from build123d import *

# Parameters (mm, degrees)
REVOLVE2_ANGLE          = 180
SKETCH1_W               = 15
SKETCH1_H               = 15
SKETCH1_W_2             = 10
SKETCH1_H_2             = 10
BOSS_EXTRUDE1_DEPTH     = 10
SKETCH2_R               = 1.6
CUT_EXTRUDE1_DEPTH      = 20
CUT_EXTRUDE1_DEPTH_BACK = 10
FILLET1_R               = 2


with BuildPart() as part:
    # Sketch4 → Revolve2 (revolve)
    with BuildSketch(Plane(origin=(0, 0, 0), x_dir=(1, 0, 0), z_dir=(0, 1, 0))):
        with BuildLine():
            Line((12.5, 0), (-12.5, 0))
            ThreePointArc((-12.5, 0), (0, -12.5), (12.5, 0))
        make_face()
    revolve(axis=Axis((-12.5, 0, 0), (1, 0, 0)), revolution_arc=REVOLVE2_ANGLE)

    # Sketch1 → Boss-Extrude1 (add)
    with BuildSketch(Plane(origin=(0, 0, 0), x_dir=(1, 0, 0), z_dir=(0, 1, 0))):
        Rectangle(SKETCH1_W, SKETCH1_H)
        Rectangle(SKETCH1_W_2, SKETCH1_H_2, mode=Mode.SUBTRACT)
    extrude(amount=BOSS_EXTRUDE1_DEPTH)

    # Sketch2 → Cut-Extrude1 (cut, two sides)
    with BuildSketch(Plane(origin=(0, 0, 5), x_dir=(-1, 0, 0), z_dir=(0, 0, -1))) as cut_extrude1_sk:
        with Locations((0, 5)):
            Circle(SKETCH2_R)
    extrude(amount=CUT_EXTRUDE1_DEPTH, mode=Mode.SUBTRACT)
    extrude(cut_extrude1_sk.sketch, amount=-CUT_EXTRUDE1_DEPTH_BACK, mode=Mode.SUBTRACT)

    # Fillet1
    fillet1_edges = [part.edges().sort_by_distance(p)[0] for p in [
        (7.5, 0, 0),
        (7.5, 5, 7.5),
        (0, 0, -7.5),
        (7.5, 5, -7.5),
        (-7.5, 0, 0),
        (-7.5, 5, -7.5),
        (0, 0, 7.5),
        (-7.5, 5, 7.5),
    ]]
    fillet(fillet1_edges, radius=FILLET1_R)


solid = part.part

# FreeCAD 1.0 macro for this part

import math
import FreeCAD as App
import Part
import Sketcher

V = App.Vector


def edges_at(feature, points):
    """Names of the edges that pass closest to the given points."""
    edges = feature.Shape.Edges
    near = lambda p: min(range(len(edges)), key=lambda i: edges[i].distToShape(Part.Vertex(*p))[0])
    return sorted({f"Edge{near(p) + 1}" for p in points})

doc = App.newDocument("Part")
body = doc.addObject("PartDesign::Body", "Body")

sketch1 = body.newObject("Sketcher::SketchObject", "Sketch")
sketch1.AttachmentSupport = (doc.getObject("XZ_Plane"), [""])
sketch1.MapMode = "FlatFace"
sketch1.addGeometry(Part.LineSegment(V(12, 0, 0), V(-12, 0, 0)), False)
sketch1.addGeometry(Part.ArcOfCircle(Part.Circle(V(0, 0, 0), V(0, 0, 1), 12), math.radians(0), math.radians(180)), False)
sketch1.addConstraint(Sketcher.Constraint("Coincident", 0, 1, 1, 1))
sketch1.addConstraint(Sketcher.Constraint("Coincident", 1, 2, 0, 2))
sketch1.addConstraint(Sketcher.Constraint("Horizontal", 0))
sketch1.addConstraint(Sketcher.Constraint("Coincident", 1, 3, -1, 1))
sketch1.addConstraint(Sketcher.Constraint("PointOnObject", 0, 1, -1))
sketch1.addConstraint(Sketcher.Constraint("Radius", 1, 12.5))
revolution = body.newObject("PartDesign::Revolution", "Revolution")
revolution.Profile = sketch1
revolution.ReferenceAxis = (sketch1, ["H_Axis"])
revolution.Angle = 180

sketch2 = body.newObject("Sketcher::SketchObject", "Sketch001")
sketch2.AttachmentSupport = (doc.getObject("XZ_Plane"), [""])
sketch2.MapMode = "FlatFace"
sketch2.addGeometry(Part.LineSegment(V(-8, -8, 0), V(-8, 8, 0)), False)
sketch2.addGeometry(Part.LineSegment(V(-8, 8, 0), V(8, 8, 0)), False)
sketch2.addGeometry(Part.LineSegment(V(8, 8, 0), V(8, -8, 0)), False)
sketch2.addGeometry(Part.LineSegment(V(8, -8, 0), V(-8, -8, 0)), False)
sketch2.addGeometry(Part.LineSegment(V(5, 5, 0), V(-5, 5, 0)), False)
sketch2.addGeometry(Part.LineSegment(V(-5, 5, 0), V(-5, -5, 0)), False)
sketch2.addGeometry(Part.LineSegment(V(-5, -5, 0), V(5, -5, 0)), False)
sketch2.addGeometry(Part.LineSegment(V(5, -5, 0), V(5, 5, 0)), False)
sketch2.addConstraint(Sketcher.Constraint("Coincident", 0, 2, 1, 1))
sketch2.addConstraint(Sketcher.Constraint("Coincident", 1, 2, 2, 1))
sketch2.addConstraint(Sketcher.Constraint("Coincident", 2, 2, 3, 1))
sketch2.addConstraint(Sketcher.Constraint("Coincident", 3, 2, 0, 1))
sketch2.addConstraint(Sketcher.Constraint("Coincident", 4, 2, 5, 1))
sketch2.addConstraint(Sketcher.Constraint("Coincident", 5, 2, 6, 1))
sketch2.addConstraint(Sketcher.Constraint("Coincident", 6, 2, 7, 1))
sketch2.addConstraint(Sketcher.Constraint("Coincident", 7, 2, 4, 1))
sketch2.addConstraint(Sketcher.Constraint("Vertical", 0))
sketch2.addConstraint(Sketcher.Constraint("Horizontal", 1))
sketch2.addConstraint(Sketcher.Constraint("Vertical", 2))
sketch2.addConstraint(Sketcher.Constraint("Horizontal", 3))
sketch2.addConstraint(Sketcher.Constraint("Horizontal", 4))
sketch2.addConstraint(Sketcher.Constraint("Vertical", 5))
sketch2.addConstraint(Sketcher.Constraint("Horizontal", 6))
sketch2.addConstraint(Sketcher.Constraint("Vertical", 7))
sketch2.addConstraint(Sketcher.Constraint("Symmetric", 0, 2, 2, 2, -1, 1))
sketch2.addConstraint(Sketcher.Constraint("Symmetric", 4, 2, 6, 2, -1, 1))
sketch2.addConstraint(Sketcher.Constraint("Equal", 3, 0))
sketch2.addConstraint(Sketcher.Constraint("Equal", 6, 5))
sketch2.addConstraint(Sketcher.Constraint("DistanceX", 1, 1, 1, 2, 15.0))
sketch2.addConstraint(Sketcher.Constraint("DistanceX", 4, 2, 4, 1, 10.0))
pad1 = body.newObject("PartDesign::Pad", "Pad")
pad1.Profile = sketch2
pad1.Length = 10
pad1.Reversed = True

sketch3 = body.newObject("Sketcher::SketchObject", "Sketch002")
sketch3.AttachmentSupport = (doc.getObject("XY_Plane"), [""])
sketch3.MapMode = "FlatFace"
sketch3.AttachmentOffset = App.Placement(V(0, 0, 5), App.Rotation())
sketch3.addGeometry(Part.Circle(V(0, 5, 0), V(0, 0, 1), 1.6), False)
sketch3.addConstraint(Sketcher.Constraint("PointOnObject", 0, 3, -2))
sketch3.addConstraint(Sketcher.Constraint("Diameter", 0, 3.2))
sketch3.addConstraint(Sketcher.Constraint("DistanceY", -1, 1, 0, 3, 5.0))
pocket1 = body.newObject("PartDesign::Pocket", "Pocket")
pocket1.Profile = sketch3
pocket1.Type = "ThroughAll"
pocket1.Midplane = True
doc.recompute()

fillet = body.newObject("PartDesign::Fillet", "Fillet")
fillet.Base = (pocket1, edges_at(pocket1, [
    (7.5, 0, 0),
    (7.5, 5, 7.5),
    (0, 0, -7.5),
    (7.5, 5, -7.5),
    (-7.5, 0, 0),
    (-7.5, 5, -7.5),
    (0, 0, 7.5),
    (-7.5, 5, 7.5),
]))
fillet.Radius = 2

doc.recompute()
